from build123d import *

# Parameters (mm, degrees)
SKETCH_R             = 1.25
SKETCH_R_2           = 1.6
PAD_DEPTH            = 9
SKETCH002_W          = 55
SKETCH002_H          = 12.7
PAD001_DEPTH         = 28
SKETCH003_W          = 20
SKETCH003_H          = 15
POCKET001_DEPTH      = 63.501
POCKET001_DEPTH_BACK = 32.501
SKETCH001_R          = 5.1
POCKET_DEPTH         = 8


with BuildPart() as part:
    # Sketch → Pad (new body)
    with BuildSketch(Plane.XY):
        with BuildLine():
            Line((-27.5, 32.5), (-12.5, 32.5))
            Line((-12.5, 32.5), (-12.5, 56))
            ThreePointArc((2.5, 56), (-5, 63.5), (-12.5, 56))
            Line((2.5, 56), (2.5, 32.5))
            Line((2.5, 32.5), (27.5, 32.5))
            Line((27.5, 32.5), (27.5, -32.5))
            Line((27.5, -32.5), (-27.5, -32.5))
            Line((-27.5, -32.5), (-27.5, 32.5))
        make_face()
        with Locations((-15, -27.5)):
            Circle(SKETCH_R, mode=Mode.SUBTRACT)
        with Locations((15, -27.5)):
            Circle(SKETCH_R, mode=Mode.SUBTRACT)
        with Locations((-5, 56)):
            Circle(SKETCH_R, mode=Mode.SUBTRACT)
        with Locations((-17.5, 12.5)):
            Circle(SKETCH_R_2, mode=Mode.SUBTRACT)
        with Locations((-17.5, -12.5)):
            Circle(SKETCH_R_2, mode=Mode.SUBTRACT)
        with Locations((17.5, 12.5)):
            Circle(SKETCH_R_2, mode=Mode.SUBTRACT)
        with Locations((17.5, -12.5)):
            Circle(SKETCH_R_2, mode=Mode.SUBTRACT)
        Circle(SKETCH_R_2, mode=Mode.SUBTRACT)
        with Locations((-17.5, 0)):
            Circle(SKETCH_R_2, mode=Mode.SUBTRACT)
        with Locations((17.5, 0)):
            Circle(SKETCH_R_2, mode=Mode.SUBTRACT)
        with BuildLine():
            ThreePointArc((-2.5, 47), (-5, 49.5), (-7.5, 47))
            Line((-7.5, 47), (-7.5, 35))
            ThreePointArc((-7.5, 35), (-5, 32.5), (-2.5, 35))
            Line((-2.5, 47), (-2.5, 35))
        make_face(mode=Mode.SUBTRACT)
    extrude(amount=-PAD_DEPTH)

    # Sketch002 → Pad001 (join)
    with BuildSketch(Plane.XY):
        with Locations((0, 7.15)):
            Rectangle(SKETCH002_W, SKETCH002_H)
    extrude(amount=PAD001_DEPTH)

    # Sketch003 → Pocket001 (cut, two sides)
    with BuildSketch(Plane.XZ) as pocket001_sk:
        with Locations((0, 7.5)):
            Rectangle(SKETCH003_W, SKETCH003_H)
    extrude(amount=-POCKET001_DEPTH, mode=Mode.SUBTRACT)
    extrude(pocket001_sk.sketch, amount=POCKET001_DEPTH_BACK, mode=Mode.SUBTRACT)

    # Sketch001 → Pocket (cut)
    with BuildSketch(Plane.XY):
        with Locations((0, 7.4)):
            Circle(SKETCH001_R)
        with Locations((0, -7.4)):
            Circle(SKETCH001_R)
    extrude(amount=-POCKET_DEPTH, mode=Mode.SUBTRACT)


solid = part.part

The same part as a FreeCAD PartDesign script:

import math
import FreeCAD as App
import Part
import Sketcher
from FreeCAD import Vector


def add_polygon(sketch, points):
    """Adds a closed chain of lines whose ends are joined by coincident constraints."""
    first, n = sketch.GeometryCount, len(points)
    for a, b in zip(points, points[1:] + points[:1]):
        sketch.addGeometry(Part.LineSegment(App.Vector(*a, 0), App.Vector(*b, 0)), False)
    for i in range(n):
        sketch.addConstraint(Sketcher.Constraint("Coincident", first + i, 2, first + (i + 1) % n, 1))

doc = App.newDocument("Part")
params = doc.addObject("Spreadsheet::Sheet", "Params")
for row, (alias, value) in enumerate([
    ("sketch1_diameter", "2.5 mm"),
    ("sketch1_diameter2", "3.2 mm"),
    ("sketch1_radius", "7.5 mm"),
    ("sketch1_radius2", "2.5 mm"),
    ("sketch1_width", "15 mm"),
    ("pad1_length", "9 mm"),
    ("sketch2_width", "55 mm"),
    ("sketch2_height", "12.7 mm"),
    ("pad2_length", "28 mm"),
    ("sketch3_width", "20 mm"),
    ("sketch3_height", "15 mm"),
    ("sketch4_diameter", "10.2 mm"),
    ("pocket2_length", "8 mm"),
], start=1):
    params.set(f"A{row}", alias)
    params.set(f"B{row}", "=" + value)
    params.setAlias(f"B{row}", alias)

body = doc.addObject("PartDesign::Body", "Body")

sketch1 = body.newObject("Sketcher::SketchObject", "Sketch")
sketch1.AttachmentSupport = (doc.getObject("XY_Plane"), [""])
sketch1.MapMode = "FlatFace"
sketch1.addGeometry([
    Part.LineSegment(Vector(-12.5, 32.5, 0), Vector(-27.5, 32.5, 0)),
    Part.LineSegment(Vector(-27.5, 32.5, 0), Vector(-27.5, -32.5, 0)),
    Part.LineSegment(Vector(-27.5, -32.5, 0), Vector(27.5, -32.5, 0)),
    Part.LineSegment(Vector(27.5, -32.5, 0), Vector(27.5, 32.5, 0)),
    Part.LineSegment(Vector(27.5, 32.5, 0), Vector(2.5, 32.5, 0)),
    Part.LineSegment(Vector(2.5, 32.5, 0), Vector(2.5, 56, 0)),
    Part.ArcOfCircle(Part.Circle(Vector(-5, 56, 0), Vector(0, 0, 1), 7.5), math.radians(0), math.radians(180)),
    Part.LineSegment(Vector(-12.5, 56, 0), Vector(-12.5, 32.5, 0)),
    Part.Circle(Vector(15, -27.5, 0), Vector(0, 0, 1), 1.2),
    Part.Circle(Vector(17.5, -12.5, 0), Vector(0, 0, 1), 1.6),
    Part.Circle(Vector(17.5, 0, 0), Vector(0, 0, 1), 1.6),
    Part.Circle(Vector(17.5, 12.5, 0), Vector(0, 0, 1), 1.6),
    Part.Circle(Vector(0, 0, 0), Vector(0, 0, 1), 1.6),
    Part.Circle(Vector(-15, -27.5, 0), Vector(0, 0, 1), 1.2),
    Part.Circle(Vector(-17.5, -12.5, 0), Vector(0, 0, 1), 1.6),
    Part.Circle(Vector(-17.5, 0, 0), Vector(0, 0, 1), 1.6),
    Part.Circle(Vector(-17.5, 12.5, 0), Vector(0, 0, 1), 1.6),
    Part.LineSegment(Vector(-2.5, 47, 0), Vector(-2.5, 35, 0)),
    Part.ArcOfCircle(Part.Circle(Vector(-5, 35, 0), Vector(0, 0, 1), 2.5), math.radians(180), math.radians(360)),
    Part.LineSegment(Vector(-7.5, 35, 0), Vector(-7.5, 47, 0)),
    Part.ArcOfCircle(Part.Circle(Vector(-5, 47, 0), Vector(0, 0, 1), 2.5), math.radians(0), math.radians(180)),
    Part.Circle(Vector(-5, 56, 0), Vector(0, 0, 1), 1.2),
], False)
sketch1.addConstraint([
    Sketcher.Constraint("Coincident", 0, 2, 1, 1),
    Sketcher.Constraint("Coincident", 1, 2, 2, 1),
    Sketcher.Constraint("Coincident", 2, 2, 3, 1),
    Sketcher.Constraint("Coincident", 3, 2, 4, 1),
    Sketcher.Constraint("Coincident", 4, 2, 5, 1),
    Sketcher.Constraint("Tangent", 5, 2, 6, 1),
    Sketcher.Constraint("Tangent", 6, 2, 7, 1),
    Sketcher.Constraint("Coincident", 7, 2, 0, 1),
    Sketcher.Constraint("Tangent", 17, 2, 18, 2),
    Sketcher.Constraint("Tangent", 18, 1, 19, 1),
    Sketcher.Constraint("Tangent", 19, 2, 20, 2),
    Sketcher.Constraint("Tangent", 20, 1, 17, 1),
    Sketcher.Constraint("Horizontal", 0),
    Sketcher.Constraint("Vertical", 1),
    Sketcher.Constraint("Horizontal", 2),
    Sketcher.Constraint("Vertical", 3),
    Sketcher.Constraint("Horizontal", 4),
    Sketcher.Constraint("Vertical", 5),
    Sketcher.Constraint("Vertical", 7),
    Sketcher.Constraint("Vertical", 17),
    Sketcher.Constraint("Vertical", 19),
    Sketcher.Constraint("Coincident", 12, 3, -1, 1),
    Sketcher.Constraint("Coincident", 21, 3, 6, 3),
    Sketcher.Constraint("Equal", 9, 10),
    Sketcher.Constraint("Equal", 10, 11),
    Sketcher.Constraint("Equal", 11, 12),
    Sketcher.Constraint("Equal", 8, 13),
    Sketcher.Constraint("Equal", 12, 14),
    Sketcher.Constraint("Equal", 14, 15),
    Sketcher.Constraint("Equal", 15, 16),
    Sketcher.Constraint("Equal", 13, 21),
    Sketcher.Constraint("Symmetric", 11, 3, 14, 3, -1, 1),
    Sketcher.Constraint("Symmetric", 10, 3, 15, 3, -1, 1),
    Sketcher.Constraint("Symmetric", 9, 3, 16, 3, -1, 1),
    Sketcher.Constraint("Symmetric", 0, 2, 2, 2, -1, 1),
    Sketcher.Constraint("Symmetric", 8, 3, 13, 3, -2),
    Sketcher.Constraint("Symmetric", 9, 3, 14, 3, -2),
    Sketcher.Constraint("PointOnObject", 10, 3, -1),
    Sketcher.Constraint("Horizontal", 0, 2, 3, 2),
    Sketcher.Constraint("Vertical", 9, 3, 10, 3),
    Sketcher.Constraint("Vertical", 6, 3, 18, 3),
    Sketcher.Constraint("Diameter", 8, 2.5),
    Sketcher.Constraint("Diameter", 9, 3.2),
    Sketcher.Constraint("Radius", 6, 7.5),
    Sketcher.Constraint("Radius", 18, 2.5),
    Sketcher.Constraint("DistanceX", 0, 2, 0, 1, 15.0),
    Sketcher.Constraint("DistanceX", 2, 1, 2, 2, 55.0),
    Sketcher.Constraint("DistanceY", 1, 2, 1, 1, 65.0),
    Sketcher.Constraint("DistanceY", 17, 2, 17, 1, 12.0),
    Sketcher.Constraint("DistanceY", 5, 1, 5, 2, 23.5),
    Sketcher.Constraint("DistanceX", -1, 1, 8, 3, 15.0),
    Sketcher.Constraint("DistanceY", -1, 1, 18, 3, 35.0),
    Sketcher.Constraint("DistanceY", 8, 3, 9, 3, 15.0),
    Sketcher.Constraint("DistanceY", 9, 3, 11, 3, 25.0),
    Sketcher.Constraint("DistanceX", 14, 3, 9, 3, 35.0),
])
sketch1.setExpression("Constraints[41]", "Params.sketch1_diameter")
sketch1.setExpression("Constraints[42]", "Params.sketch1_diameter2")
sketch1.setExpression("Constraints[43]", "Params.sketch1_radius")
sketch1.setExpression("Constraints[44]", "Params.sketch1_radius2")
sketch1.setExpression("Constraints[45]", "Params.sketch1_width")
pad1 = body.newObject("PartDesign::Pad", "Pad")
pad1.Profile = sketch1
pad1.setExpression("Length", "Params.pad1_length")
pad1.Reversed = True

sketch2 = body.newObject("Sketcher::SketchObject", "Sketch001")
sketch2.AttachmentSupport = (doc.getObject("XY_Plane"), [""])
sketch2.MapMode = "FlatFace"
add_polygon(sketch2, [(-28, 14), (-28, 1), (28, 1), (28, 14)])
sketch2.addConstraint([
    Sketcher.Constraint("Vertical", 0),
    Sketcher.Constraint("Horizontal", 1),
    Sketcher.Constraint("Vertical", 2),
    Sketcher.Constraint("Horizontal", 3),
    Sketcher.Constraint("DistanceX", 1, 1, 1, 2, 55.0),
    Sketcher.Constraint("DistanceY", 0, 2, 0, 1, 12.7),
    Sketcher.Constraint("DistanceX", 0, 2, -1, 1, 27.5),
    Sketcher.Constraint("DistanceY", -1, 1, 0, 2, 0.8),
])
sketch2.setExpression("Constraints[8]", "Params.sketch2_width")
sketch2.setExpression("Constraints[9]", "Params.sketch2_height")
pad2 = body.newObject("PartDesign::Pad", "Pad001")
pad2.Profile = sketch2
pad2.setExpression("Length", "Params.pad2_length")

sketch3 = body.newObject("Sketcher::SketchObject", "Sketch002")
sketch3.AttachmentSupport = (doc.getObject("XZ_Plane"), [""])
sketch3.MapMode = "FlatFace"
add_polygon(sketch3, [(-10, 15), (-10, 0), (10, 0), (10, 15)])
sketch3.addConstraint([
    Sketcher.Constraint("Vertical", 0),
    Sketcher.Constraint("Horizontal", 1),
    Sketcher.Constraint("Vertical", 2),
    Sketcher.Constraint("Horizontal", 3),
    Sketcher.Constraint("Symmetric", 0, 2, 1, 2, -1, 1),
    Sketcher.Constraint("DistanceX", 1, 1, 1, 2, 20.0),
    Sketcher.Constraint("DistanceY", 0, 2, 0, 1, 15.0),
])
sketch3.setExpression("Constraints[9]", "Params.sketch3_width")
sketch3.setExpression("Constraints[10]", "Params.sketch3_height")
pocket1 = body.newObject("PartDesign::Pocket", "Pocket")
pocket1.Profile = sketch3
pocket1.Type = "ThroughAll"
pocket1.Midplane = True

sketch4 = body.newObject("Sketcher::SketchObject", "Sketch003")
sketch4.AttachmentSupport = (doc.getObject("XY_Plane"), [""])
sketch4.MapMode = "FlatFace"
sketch4.addGeometry([
    Part.Circle(Vector(0, 7, 0), Vector(0, 0, 1), 5),
    Part.Circle(Vector(0, -7, 0), Vector(0, 0, 1), 5),
], False)
sketch4.addConstraint([
    Sketcher.Constraint("Equal", 0, 1),
    Sketcher.Constraint("Symmetric", 0, 3, 1, 3, -1, 1),
    Sketcher.Constraint("PointOnObject", 0, 3, -2),
    Sketcher.Constraint("Diameter", 0, 10.2),
    Sketcher.Constraint("DistanceY", -1, 1, 0, 3, 7.4),
])
sketch4.setExpression("Constraints[3]", "Params.sketch4_diameter")
pocket2 = body.newObject("PartDesign::Pocket", "Pocket001")
pocket2.Profile = sketch4
pocket2.setExpression("Length", "Params.pocket2_length")

doc.recompute()
